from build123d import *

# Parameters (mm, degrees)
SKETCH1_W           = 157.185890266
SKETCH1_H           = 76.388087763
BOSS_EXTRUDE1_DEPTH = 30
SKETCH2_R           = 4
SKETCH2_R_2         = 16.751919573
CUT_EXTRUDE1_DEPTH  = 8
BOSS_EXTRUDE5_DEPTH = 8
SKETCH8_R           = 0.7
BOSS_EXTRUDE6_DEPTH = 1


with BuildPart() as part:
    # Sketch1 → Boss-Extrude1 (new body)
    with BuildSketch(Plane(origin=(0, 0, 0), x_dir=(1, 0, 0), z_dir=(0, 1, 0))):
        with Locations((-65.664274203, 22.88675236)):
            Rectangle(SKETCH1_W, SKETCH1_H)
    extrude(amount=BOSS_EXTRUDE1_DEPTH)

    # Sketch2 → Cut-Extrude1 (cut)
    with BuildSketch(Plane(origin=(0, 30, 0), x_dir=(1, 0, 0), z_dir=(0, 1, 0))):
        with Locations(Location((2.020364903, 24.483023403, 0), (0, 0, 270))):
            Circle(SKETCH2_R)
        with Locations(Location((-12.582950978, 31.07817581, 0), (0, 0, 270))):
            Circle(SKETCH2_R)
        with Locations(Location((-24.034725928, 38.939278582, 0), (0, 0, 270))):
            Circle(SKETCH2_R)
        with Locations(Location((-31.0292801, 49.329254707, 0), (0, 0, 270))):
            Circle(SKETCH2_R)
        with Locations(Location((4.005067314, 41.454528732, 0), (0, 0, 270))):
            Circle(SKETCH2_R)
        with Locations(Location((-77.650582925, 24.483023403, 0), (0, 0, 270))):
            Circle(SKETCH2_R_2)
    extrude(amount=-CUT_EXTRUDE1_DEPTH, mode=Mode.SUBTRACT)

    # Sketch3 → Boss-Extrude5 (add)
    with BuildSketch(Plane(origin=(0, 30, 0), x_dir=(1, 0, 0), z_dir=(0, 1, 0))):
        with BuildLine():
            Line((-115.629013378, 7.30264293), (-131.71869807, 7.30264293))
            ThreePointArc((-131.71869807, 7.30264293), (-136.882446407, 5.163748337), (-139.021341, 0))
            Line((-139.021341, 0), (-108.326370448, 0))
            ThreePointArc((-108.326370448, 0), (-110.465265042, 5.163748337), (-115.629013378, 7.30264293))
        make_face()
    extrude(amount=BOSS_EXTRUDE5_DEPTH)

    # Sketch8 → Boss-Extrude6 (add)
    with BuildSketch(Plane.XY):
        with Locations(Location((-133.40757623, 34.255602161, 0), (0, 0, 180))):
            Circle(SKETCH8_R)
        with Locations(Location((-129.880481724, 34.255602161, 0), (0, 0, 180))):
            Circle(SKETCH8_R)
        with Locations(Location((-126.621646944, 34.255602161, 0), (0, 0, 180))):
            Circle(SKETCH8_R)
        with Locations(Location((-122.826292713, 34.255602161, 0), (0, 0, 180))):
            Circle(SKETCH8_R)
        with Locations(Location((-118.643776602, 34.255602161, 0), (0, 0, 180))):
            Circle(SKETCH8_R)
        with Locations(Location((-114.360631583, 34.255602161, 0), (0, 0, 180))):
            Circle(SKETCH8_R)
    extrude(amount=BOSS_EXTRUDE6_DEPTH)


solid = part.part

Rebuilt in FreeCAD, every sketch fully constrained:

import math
import FreeCAD as App
import Part
import Sketcher


def add_polygon(sketch, points):
    """Adds a closed chain of lines whose ends are joined by coincident constraints."""
    first, n = sketch.GeometryCount, len(points)
    for a, b in zip(points, points[1:] + points[:1]):
        sketch.addGeometry(Part.LineSegment(App.Vector(*a, 0), App.Vector(*b, 0)), False)
    for i in range(n):
        sketch.addConstraint(Sketcher.Constraint("Coincident", first + i, 2, first + (i + 1) % n, 1))

doc = App.newDocument("Part")
body = doc.addObject("PartDesign::Body", "Body")

# Sketch on XZ plane
sketch1 = body.newObject("Sketcher::SketchObject", "Sketch")
sketch1.AttachmentSupport = (doc.getObject("XZ_Plane"), [""])
sketch1.MapMode = "FlatFace"
add_polygon(sketch1, [(-144, -61), (-144, 15), (13, 15), (13, -61)])  # lines 0-3
sketch1.addConstraint([
    Sketcher.Constraint("Vertical", 0),
    Sketcher.Constraint("Horizontal", 1),
    Sketcher.Constraint("Vertical", 2),
    Sketcher.Constraint("Horizontal", 3),
    Sketcher.Constraint("DistanceX", 1, 1, 1, 2, 157.18589),
    Sketcher.Constraint("DistanceY", 0, 1, 0, 2, 76.388088),
    Sketcher.Constraint("DistanceX", 0, 2, -1, 1, 144.257219),
    Sketcher.Constraint("DistanceY", -1, 1, 0, 2, 15.307292),
])
pad1 = body.newObject("PartDesign::Pad", "Pad")
pad1.Profile = sketch1
pad1.Length = 30
pad1.Reversed = True

# Sketch on XZ plane
sketch2 = body.newObject("Sketcher::SketchObject", "Sketch001")
sketch2.AttachmentSupport = (doc.getObject("XZ_Plane"), [""])
sketch2.MapMode = "FlatFace"
sketch2.AttachmentOffset = App.Placement(App.Vector(0, 0, -30), App.Rotation())
sketch2.addGeometry([
    Part.Circle(App.Vector(2, -24.5, 0), App.Vector(0, 0, 1), 4),  # 0
    Part.Circle(App.Vector(-12.6, -31.1, 0), App.Vector(0, 0, 1), 4),  # 1
    Part.Circle(App.Vector(-24, -38.9, 0), App.Vector(0, 0, 1), 4),  # 2
    Part.Circle(App.Vector(-31, -49.3, 0), App.Vector(0, 0, 1), 4),  # 3
    Part.Circle(App.Vector(4, -41.5, 0), App.Vector(0, 0, 1), 4),  # 4
    Part.Circle(App.Vector(-77.7, -24.5, 0), App.Vector(0, 0, 1), 16.8),  # 5
], False)
sketch2.addConstraint([
    Sketcher.Constraint("Equal", 0, 1),
    Sketcher.Constraint("Equal", 1, 2),
    Sketcher.Constraint("Equal", 2, 3),
    Sketcher.Constraint("Equal", 3, 4),
    Sketcher.Constraint("Horizontal", 0, 3, 5, 3),
    Sketcher.Constraint("Diameter", 0, 8.0),
    Sketcher.Constraint("Diameter", 5, 33.503839),
    Sketcher.Constraint("DistanceX", 1, 3, -1, 1, 12.582951),
    Sketcher.Constraint("DistanceY", 2, 3, -1, 1, 38.939279),
    Sketcher.Constraint("DistanceX", 3, 3, -1, 1, 31.02928),
    Sketcher.Constraint("DistanceY", 4, 3, -1, 1, 41.454529),
    Sketcher.Constraint("DistanceX", 2, 3, 0, 3, 26.055091),
    Sketcher.Constraint("DistanceY", 3, 3, 1, 3, 18.251079),
    Sketcher.Constraint("DistanceY", 3, 3, 0, 3, 24.846231),
    Sketcher.Constraint("DistanceX", 1, 3, 4, 3, 16.588018),
    Sketcher.Constraint("DistanceX", 5, 3, 1, 3, 65.067632),
    Sketcher.Constraint("DistanceX", -1, 1, 0, 3, 2.020365),
    Sketcher.Constraint("DistanceY", 0, 3, -1, 1, 24.483023),
])
pocket1 = body.newObject("PartDesign::Pocket", "Pocket")
pocket1.Profile = sketch2
pocket1.Length = 8
pocket1.Reversed = True

# Sketch on XZ plane
sketch3 = body.newObject("Sketcher::SketchObject", "Sketch002")
sketch3.AttachmentSupport = (doc.getObject("XZ_Plane"), [""])
sketch3.MapMode = "FlatFace"
sketch3.AttachmentOffset = App.Placement(App.Vector(0, 0, -30), App.Rotation())
sketch3.addGeometry([
    Part.LineSegment(App.Vector(-116, -7, 0), App.Vector(-132, -7, 0)),
    Part.ArcOfCircle(Part.Circle(App.Vector(-132, 0, 0), App.Vector(0, 0, 1), 7), math.radians(180), math.radians(270)),
    Part.LineSegment(App.Vector(-139, 0, 0), App.Vector(-108, 0, 0)),
    Part.ArcOfCircle(Part.Circle(App.Vector(-116, 0, 0), App.Vector(0, 0, 1), 7), math.radians(-90), math.radians(0)),
], False)
sketch3.addConstraint([
    Sketcher.Constraint("Tangent", 0, 2, 1, 2),
    Sketcher.Constraint("Coincident", 1, 1, 2, 1),
    Sketcher.Constraint("Coincident", 2, 2, 3, 2),
    Sketcher.Constraint("Tangent", 3, 1, 0, 1),
    Sketcher.Constraint("Horizontal", 0),
    Sketcher.Constraint("Horizontal", 2),
    Sketcher.Constraint("Equal", 1, 3),
    Sketcher.Constraint("PointOnObject", 1, 3, -1),
    Sketcher.Constraint("PointOnObject", 1, 1, -1),
    Sketcher.Constraint("Radius", 1, 7.302643),
    Sketcher.Constraint("DistanceX", 2, 1, 2, 2, 30.694971),
    Sketcher.Constraint("DistanceX", 1, 3, -1, 1, 131.718698),
])
pad2 = body.newObject("PartDesign::Pad", "Pad001")
pad2.Profile = sketch3
pad2.Length = 8
pad2.Reversed = True

# Sketch on XY plane
sketch4 = body.newObject("Sketcher::SketchObject", "Sketch003")
sketch4.AttachmentSupport = (doc.getObject("XY_Plane"), [""])
sketch4.MapMode = "FlatFace"
sketch4.addGeometry([
    Part.Circle(App.Vector(-133.4, 34.3, 0), App.Vector(0, 0, 1), 0.7),  # 0
    Part.Circle(App.Vector(-129.9, 34.3, 0), App.Vector(0, 0, 1), 0.7),  # 1
    Part.Circle(App.Vector(-126.6, 34.3, 0), App.Vector(0, 0, 1), 0.7),  # 2
    Part.Circle(App.Vector(-122.8, 34.3, 0), App.Vector(0, 0, 1), 0.7),  # 3
    Part.Circle(App.Vector(-118.6, 34.3, 0), App.Vector(0, 0, 1), 0.7),  # 4
    Part.Circle(App.Vector(-114.4, 34.3, 0), App.Vector(0, 0, 1), 0.7),  # 5
], False)
sketch4.addConstraint([
    Sketcher.Constraint("Equal", 0, 1),
    Sketcher.Constraint("Equal", 1, 2),
    Sketcher.Constraint("Equal", 2, 3),
    Sketcher.Constraint("Equal", 3, 4),
    Sketcher.Constraint("Equal", 4, 5),
    Sketcher.Constraint("Horizontal", 0, 3, 1, 3),
    Sketcher.Constraint("Horizontal", 1, 3, 2, 3),
    Sketcher.Constraint("Horizontal", 2, 3, 3, 3),
    Sketcher.Constraint("Horizontal", 3, 3, 4, 3),
    Sketcher.Constraint("Horizontal", 4, 3, 5, 3),
    Sketcher.Constraint("Diameter", 0, 1.4),
    Sketcher.Constraint("DistanceX", 0, 3, 4, 3, 14.7638),
    Sketcher.Constraint("DistanceX", 1, 3, -1, 1, 129.880482),
    Sketcher.Constraint("DistanceX", 5, 3, -1, 1, 114.360632),
    Sketcher.Constraint("DistanceX", 0, 3, 2, 3, 6.785929),
    Sketcher.Constraint("DistanceX", 1, 3, 3, 3, 7.054189),
    Sketcher.Constraint("DistanceX", 0, 3, -1, 1, 133.407576),
    Sketcher.Constraint("DistanceY", -1, 1, 0, 3, 34.255602),
])
pad3 = body.newObject("PartDesign::Pad", "Pad002")
pad3.Profile = sketch4
pad3.Length = 1

doc.recompute()
